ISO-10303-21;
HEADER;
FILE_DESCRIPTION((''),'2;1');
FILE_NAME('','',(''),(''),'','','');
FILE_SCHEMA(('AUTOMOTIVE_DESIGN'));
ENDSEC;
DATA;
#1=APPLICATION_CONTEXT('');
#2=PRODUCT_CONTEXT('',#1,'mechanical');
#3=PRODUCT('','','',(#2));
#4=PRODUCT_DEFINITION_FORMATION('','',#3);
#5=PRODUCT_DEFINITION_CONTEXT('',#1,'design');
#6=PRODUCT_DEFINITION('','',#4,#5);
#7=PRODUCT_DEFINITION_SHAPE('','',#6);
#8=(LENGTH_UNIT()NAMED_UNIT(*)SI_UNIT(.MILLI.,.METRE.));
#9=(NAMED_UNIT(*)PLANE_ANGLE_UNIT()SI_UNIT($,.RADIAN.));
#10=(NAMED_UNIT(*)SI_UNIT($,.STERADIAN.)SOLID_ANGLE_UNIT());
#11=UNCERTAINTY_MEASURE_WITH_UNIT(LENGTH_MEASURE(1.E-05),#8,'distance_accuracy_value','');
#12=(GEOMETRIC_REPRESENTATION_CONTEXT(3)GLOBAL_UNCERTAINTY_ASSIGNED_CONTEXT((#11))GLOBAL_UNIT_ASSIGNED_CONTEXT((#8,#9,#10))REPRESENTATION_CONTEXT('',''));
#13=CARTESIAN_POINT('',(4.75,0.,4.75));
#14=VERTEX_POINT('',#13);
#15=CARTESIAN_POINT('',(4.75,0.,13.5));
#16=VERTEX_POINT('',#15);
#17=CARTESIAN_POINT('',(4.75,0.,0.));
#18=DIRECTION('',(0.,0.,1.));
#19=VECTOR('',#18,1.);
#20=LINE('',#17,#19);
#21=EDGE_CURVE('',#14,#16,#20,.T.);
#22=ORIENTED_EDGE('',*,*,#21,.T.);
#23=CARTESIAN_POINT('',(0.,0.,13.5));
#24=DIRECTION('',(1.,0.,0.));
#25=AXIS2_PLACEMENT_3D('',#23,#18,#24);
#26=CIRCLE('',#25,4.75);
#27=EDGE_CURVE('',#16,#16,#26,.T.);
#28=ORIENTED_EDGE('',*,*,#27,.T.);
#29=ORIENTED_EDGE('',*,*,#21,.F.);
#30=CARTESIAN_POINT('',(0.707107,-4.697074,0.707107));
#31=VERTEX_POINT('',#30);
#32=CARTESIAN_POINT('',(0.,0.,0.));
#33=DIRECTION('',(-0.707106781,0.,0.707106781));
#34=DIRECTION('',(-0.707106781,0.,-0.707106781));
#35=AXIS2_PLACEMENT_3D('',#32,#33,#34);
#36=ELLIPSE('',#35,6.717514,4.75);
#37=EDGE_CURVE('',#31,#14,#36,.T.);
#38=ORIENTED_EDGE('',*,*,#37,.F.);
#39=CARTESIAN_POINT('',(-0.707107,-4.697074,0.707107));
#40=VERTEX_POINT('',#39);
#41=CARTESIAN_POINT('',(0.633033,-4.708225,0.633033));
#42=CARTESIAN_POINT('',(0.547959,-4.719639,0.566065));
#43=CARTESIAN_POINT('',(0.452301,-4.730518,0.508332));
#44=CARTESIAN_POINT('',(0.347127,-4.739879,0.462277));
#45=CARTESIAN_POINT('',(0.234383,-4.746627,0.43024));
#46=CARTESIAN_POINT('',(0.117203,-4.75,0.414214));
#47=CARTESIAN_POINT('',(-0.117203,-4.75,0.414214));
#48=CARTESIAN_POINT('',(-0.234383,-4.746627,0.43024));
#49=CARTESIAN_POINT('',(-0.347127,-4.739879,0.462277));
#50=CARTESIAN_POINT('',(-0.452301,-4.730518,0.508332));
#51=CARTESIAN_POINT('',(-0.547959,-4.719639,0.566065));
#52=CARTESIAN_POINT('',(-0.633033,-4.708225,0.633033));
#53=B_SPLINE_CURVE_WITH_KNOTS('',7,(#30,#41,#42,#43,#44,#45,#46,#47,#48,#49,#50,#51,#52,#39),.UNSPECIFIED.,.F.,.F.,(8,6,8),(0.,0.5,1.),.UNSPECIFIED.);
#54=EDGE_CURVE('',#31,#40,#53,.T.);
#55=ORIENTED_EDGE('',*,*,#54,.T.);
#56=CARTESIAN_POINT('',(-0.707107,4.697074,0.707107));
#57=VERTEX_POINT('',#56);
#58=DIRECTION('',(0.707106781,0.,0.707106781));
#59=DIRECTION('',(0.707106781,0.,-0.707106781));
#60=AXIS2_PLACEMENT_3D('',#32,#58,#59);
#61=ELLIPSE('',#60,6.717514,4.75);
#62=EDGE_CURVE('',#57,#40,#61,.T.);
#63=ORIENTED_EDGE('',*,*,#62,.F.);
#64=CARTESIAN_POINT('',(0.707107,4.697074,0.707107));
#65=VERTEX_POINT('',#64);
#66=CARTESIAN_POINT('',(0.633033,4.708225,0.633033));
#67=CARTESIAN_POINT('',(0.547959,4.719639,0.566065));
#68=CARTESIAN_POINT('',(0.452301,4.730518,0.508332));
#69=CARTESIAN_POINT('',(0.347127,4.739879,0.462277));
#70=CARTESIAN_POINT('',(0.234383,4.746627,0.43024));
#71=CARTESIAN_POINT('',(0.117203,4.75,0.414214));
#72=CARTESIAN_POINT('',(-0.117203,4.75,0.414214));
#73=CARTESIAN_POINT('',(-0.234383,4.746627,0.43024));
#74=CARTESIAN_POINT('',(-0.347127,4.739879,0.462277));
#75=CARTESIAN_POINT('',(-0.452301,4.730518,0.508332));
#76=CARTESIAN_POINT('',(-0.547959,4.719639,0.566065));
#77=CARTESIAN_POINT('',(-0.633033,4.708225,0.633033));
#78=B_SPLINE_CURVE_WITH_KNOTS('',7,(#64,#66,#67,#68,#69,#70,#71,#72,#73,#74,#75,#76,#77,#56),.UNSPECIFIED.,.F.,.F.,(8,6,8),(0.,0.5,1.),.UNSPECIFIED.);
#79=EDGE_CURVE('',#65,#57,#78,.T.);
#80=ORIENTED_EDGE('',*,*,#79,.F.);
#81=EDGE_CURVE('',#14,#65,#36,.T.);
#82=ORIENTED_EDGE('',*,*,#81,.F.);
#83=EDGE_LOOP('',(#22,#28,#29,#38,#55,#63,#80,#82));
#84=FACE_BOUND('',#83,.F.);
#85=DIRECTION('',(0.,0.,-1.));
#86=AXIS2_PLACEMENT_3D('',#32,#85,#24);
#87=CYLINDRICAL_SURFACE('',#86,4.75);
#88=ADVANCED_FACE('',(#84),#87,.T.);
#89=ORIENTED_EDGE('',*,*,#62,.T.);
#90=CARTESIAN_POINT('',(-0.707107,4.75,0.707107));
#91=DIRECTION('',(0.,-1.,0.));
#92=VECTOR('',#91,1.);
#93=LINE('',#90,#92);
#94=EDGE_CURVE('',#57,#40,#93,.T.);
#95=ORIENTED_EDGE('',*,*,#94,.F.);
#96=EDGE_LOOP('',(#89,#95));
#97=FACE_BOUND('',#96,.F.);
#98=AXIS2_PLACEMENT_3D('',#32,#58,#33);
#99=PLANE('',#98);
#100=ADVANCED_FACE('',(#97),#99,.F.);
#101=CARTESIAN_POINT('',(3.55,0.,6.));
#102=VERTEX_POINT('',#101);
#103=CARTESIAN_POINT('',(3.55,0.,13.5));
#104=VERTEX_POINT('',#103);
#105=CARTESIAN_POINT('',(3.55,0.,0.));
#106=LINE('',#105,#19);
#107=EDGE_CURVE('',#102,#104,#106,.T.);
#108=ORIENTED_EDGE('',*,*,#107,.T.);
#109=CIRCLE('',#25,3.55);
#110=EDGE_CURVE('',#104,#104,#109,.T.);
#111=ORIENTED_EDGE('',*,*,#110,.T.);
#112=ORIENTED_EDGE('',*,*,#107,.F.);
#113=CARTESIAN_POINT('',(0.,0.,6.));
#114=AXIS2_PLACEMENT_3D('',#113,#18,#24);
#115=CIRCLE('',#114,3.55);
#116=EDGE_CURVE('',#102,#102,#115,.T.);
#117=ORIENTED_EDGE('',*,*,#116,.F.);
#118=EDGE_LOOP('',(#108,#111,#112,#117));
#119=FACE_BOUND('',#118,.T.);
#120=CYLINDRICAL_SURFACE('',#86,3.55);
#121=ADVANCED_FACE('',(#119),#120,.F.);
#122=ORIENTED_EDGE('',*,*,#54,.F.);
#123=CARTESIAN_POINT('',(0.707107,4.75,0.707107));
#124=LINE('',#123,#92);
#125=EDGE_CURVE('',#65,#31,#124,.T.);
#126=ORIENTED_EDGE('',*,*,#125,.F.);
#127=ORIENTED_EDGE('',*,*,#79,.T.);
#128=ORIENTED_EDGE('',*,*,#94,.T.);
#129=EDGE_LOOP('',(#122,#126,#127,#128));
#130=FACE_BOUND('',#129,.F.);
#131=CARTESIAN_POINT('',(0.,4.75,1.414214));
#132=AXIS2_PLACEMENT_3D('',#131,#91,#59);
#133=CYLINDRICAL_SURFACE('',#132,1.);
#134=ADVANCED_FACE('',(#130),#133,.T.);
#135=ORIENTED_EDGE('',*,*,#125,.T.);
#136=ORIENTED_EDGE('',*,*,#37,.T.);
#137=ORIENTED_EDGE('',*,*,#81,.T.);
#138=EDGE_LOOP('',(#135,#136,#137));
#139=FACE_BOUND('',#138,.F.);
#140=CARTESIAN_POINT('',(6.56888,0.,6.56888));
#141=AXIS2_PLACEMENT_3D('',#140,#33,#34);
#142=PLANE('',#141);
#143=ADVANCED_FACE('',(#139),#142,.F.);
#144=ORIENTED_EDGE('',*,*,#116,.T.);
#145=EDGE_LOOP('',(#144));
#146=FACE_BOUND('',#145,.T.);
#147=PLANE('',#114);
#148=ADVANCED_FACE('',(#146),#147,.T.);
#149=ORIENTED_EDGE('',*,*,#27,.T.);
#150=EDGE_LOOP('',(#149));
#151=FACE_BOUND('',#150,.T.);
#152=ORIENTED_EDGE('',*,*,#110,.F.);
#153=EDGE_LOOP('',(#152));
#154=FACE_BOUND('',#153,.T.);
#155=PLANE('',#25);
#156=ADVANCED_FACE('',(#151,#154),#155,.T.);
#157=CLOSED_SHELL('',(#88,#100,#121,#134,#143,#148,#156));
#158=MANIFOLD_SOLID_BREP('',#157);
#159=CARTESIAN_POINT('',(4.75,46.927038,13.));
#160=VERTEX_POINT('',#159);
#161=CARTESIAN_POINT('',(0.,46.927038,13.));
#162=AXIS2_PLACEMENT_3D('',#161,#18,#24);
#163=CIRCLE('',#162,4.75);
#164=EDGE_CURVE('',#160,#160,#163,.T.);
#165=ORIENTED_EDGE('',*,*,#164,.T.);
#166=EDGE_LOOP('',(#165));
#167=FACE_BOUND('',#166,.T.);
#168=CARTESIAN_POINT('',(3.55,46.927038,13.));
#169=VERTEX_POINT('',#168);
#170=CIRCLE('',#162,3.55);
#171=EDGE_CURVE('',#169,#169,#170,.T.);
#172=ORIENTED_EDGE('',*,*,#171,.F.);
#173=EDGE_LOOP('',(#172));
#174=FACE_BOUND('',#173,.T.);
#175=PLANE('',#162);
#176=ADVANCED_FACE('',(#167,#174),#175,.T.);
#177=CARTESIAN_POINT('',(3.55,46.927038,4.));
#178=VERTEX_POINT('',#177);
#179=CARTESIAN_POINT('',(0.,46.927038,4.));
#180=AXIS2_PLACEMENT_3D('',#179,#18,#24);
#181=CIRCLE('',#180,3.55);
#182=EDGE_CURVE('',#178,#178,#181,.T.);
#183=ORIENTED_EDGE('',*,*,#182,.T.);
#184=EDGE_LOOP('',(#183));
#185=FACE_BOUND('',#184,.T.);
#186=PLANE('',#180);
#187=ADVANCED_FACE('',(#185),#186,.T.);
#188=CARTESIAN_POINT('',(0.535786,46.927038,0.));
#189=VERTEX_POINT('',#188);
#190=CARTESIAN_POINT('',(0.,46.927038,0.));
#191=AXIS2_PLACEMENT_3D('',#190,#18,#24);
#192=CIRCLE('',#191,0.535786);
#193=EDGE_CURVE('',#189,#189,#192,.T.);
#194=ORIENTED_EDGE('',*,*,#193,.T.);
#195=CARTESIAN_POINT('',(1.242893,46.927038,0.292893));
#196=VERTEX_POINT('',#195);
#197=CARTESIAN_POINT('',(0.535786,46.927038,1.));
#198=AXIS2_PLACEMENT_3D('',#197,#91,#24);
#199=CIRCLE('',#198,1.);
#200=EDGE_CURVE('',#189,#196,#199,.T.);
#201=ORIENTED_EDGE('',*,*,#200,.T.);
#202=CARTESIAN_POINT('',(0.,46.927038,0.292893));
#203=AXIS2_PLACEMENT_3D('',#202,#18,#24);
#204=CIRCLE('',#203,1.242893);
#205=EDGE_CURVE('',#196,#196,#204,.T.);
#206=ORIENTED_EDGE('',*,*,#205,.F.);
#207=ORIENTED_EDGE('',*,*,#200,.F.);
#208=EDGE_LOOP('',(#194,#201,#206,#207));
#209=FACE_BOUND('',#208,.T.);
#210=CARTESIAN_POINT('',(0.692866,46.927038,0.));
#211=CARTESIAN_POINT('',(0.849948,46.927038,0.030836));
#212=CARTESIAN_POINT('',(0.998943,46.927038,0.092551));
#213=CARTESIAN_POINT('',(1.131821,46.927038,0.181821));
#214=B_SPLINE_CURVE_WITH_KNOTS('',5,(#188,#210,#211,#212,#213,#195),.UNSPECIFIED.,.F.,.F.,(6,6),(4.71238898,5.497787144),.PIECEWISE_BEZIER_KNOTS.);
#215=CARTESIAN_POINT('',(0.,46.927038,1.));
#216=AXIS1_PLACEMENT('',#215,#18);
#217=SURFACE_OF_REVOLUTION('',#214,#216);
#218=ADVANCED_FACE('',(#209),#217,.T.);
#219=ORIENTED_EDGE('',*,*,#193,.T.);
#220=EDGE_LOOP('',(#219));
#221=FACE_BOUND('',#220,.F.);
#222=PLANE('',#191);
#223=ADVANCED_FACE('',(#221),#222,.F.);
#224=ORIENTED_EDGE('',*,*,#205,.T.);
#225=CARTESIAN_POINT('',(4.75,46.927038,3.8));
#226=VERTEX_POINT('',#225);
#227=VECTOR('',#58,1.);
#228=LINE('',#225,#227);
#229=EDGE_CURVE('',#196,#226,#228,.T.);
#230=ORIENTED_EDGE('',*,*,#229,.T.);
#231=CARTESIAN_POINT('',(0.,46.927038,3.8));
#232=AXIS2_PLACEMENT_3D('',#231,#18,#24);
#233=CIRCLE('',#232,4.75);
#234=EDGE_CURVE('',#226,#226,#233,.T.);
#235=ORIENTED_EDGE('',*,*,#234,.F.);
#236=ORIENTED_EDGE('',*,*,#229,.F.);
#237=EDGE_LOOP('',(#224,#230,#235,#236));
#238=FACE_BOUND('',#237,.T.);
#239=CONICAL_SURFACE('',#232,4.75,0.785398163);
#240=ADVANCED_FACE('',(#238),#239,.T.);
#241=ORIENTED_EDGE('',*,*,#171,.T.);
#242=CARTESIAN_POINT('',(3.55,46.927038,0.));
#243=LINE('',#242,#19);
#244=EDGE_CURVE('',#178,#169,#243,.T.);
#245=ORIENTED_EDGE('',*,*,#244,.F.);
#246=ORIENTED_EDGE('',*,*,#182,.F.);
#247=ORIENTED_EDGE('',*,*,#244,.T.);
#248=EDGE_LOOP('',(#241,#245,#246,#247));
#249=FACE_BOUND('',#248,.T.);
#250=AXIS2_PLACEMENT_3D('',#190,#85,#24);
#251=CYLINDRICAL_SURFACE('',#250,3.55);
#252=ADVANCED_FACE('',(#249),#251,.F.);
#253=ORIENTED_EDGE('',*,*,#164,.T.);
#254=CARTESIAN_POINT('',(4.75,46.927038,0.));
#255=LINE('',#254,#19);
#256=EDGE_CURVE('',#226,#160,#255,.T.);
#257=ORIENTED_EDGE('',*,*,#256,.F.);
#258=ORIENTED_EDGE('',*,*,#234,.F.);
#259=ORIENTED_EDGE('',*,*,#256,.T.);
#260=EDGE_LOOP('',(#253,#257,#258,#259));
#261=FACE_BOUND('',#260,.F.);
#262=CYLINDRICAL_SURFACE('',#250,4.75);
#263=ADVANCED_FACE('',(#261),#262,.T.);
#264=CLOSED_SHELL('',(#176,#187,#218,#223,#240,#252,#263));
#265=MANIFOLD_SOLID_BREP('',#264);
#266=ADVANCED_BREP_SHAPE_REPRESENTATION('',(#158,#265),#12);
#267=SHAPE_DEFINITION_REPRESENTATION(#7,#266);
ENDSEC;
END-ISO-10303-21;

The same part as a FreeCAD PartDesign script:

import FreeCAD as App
import Part
import Sketcher

V = App.Vector
Q = App.Units.Quantity


def edges_at(feature, points):
    """Names of the edges that pass closest to the given points."""
    edges = feature.Shape.Edges
    near = lambda p: min(range(len(edges)), key=lambda i: edges[i].distToShape(Part.Vertex(*p))[0])
    return sorted({f"Edge{near(p) + 1}" for p in points})

doc = App.newDocument("Part")
params = doc.addObject("Spreadsheet::Sheet", "Params")
for row, (alias, value) in enumerate([
    ("sketch1_diameter", "9.5 mm"),
    ("sketch1_diameter2", "7.1 mm"),
    ("pad1_length", "13.5 mm"),
    ("sketch2_diameter", "7.1 mm"),
    ("pad2_length", "6 mm"),
    ("pocket1_length", "25 mm"),
    ("fillet_radius", "1 mm"),
    ("sketch4_diameter", "9.5 mm"),
    ("sketch4_diameter2", "7.1 mm"),
    ("pad3_length", "13 mm"),
    ("sketch5_diameter", "7.1 mm"),
    ("pad4_length", "4 mm"),
    ("chamfer_size", "3.8 mm"),
    ("fillet2_radius", "1 mm"),
], start=1):
    params.set(f"A{row}", alias)
    params.set(f"B{row}", "=" + value)
    params.setAlias(f"B{row}", alias)

body = doc.addObject("PartDesign::Body", "Body")

sketch1 = body.newObject("Sketcher::SketchObject", "Sketch")
sketch1.AttachmentSupport = (doc.getObject("XY_Plane"), [""])
sketch1.MapMode = "FlatFace"
sketch1.addGeometry(Part.Circle(V(0, 0, 0), V(0, 0, 1), 4.8), False)
sketch1.addGeometry(Part.Circle(V(0, 0, 0), V(0, 0, 1), 3.5), False)
sketch1.addConstraint(Sketcher.Constraint("Coincident", 0, 3, -1, 1))
sketch1.addConstraint(Sketcher.Constraint("Coincident", 1, 3, -1, 1))
sketch1.addConstraint(Sketcher.Constraint("Diameter", 0, Q("9.5 mm")))
sketch1.addConstraint(Sketcher.Constraint("Diameter", 1, Q("7.1 mm")))
sketch1.setExpression("Constraints[2]", "Params.sketch1_diameter")
sketch1.setExpression("Constraints[3]", "Params.sketch1_diameter2")
pad1 = body.newObject("PartDesign::Pad", "Pad")
pad1.Profile = sketch1
pad1.setExpression("Length", "Params.pad1_length")

sketch2 = body.newObject("Sketcher::SketchObject", "Sketch001")
sketch2.AttachmentSupport = (doc.getObject("XY_Plane"), [""])
sketch2.MapMode = "FlatFace"
sketch2.addGeometry(Part.Circle(V(0, 0, 0), V(0, 0, 1), 3.5), False)
sketch2.addConstraint(Sketcher.Constraint("Coincident", 0, 3, -1, 1))
sketch2.addConstraint(Sketcher.Constraint("Diameter", 0, Q("7.1 mm")))
sketch2.setExpression("Constraints[1]", "Params.sketch2_diameter")
pad2 = body.newObject("PartDesign::Pad", "Pad001")
pad2.Profile = sketch2
pad2.setExpression("Length", "Params.pad2_length")

sketch3 = body.newObject("Sketcher::SketchObject", "Sketch002")
sketch3.AttachmentSupport = (doc.getObject("XZ_Plane"), [""])
sketch3.MapMode = "FlatFace"
sketch3.addGeometry(Part.LineSegment(V(7, 7, 0), V(0, 0, 0)), False)
sketch3.addGeometry(Part.LineSegment(V(0, 0, 0), V(-6, 6, 0)), False)
sketch3.addGeometry(Part.LineSegment(V(-6, 6, 0), V(-6, -5, 0)), False)
sketch3.addGeometry(Part.LineSegment(V(-6, -5, 0), V(7, -5, 0)), False)
sketch3.addGeometry(Part.LineSegment(V(7, -5, 0), V(7, 7, 0)), False)
sketch3.addConstraint(Sketcher.Constraint("Coincident", 0, 2, 1, 1))
sketch3.addConstraint(Sketcher.Constraint("Coincident", 1, 2, 2, 1))
sketch3.addConstraint(Sketcher.Constraint("Coincident", 2, 2, 3, 1))
sketch3.addConstraint(Sketcher.Constraint("Coincident", 3, 2, 4, 1))
sketch3.addConstraint(Sketcher.Constraint("Coincident", 4, 2, 0, 1))
sketch3.addConstraint(Sketcher.Constraint("Vertical", 2))
sketch3.addConstraint(Sketcher.Constraint("Horizontal", 3))
sketch3.addConstraint(Sketcher.Constraint("Vertical", 4))
sketch3.addConstraint(Sketcher.Constraint("Coincident", 0, 2, -1, 1))
sketch3.addConstraint(Sketcher.Constraint("Perpendicular", 0, 1))
sketch3.addConstraint(Sketcher.Constraint("Angle", 0, Q("-135 deg")))
sketch3.addConstraint(Sketcher.Constraint("Distance", 0, Q("9.289799 mm")))
sketch3.addConstraint(Sketcher.Constraint("DistanceX", 3, 1, 3, 2, Q("12.384853 mm")))
sketch3.addConstraint(Sketcher.Constraint("DistanceY", 2, 2, 2, 1, Q("10.614696 mm")))
pocket1 = body.newObject("PartDesign::Pocket", "Pocket")
pocket1.Profile = sketch3
pocket1.setExpression("Length", "Params.pocket1_length")
pocket1.Midplane = True
doc.recompute()

fillet = body.newObject("PartDesign::Fillet", "Fillet")
fillet.Base = (pocket1, edges_at(pocket1, [(0, 0, 0)]))
fillet.setExpression("Radius", "Params.fillet_radius")
body2 = doc.addObject("PartDesign::Body", "Body001")

sketch4 = body2.newObject("Sketcher::SketchObject", "Sketch003")
sketch4.AttachmentSupport = (doc.getObject("XY_Plane001"), [""])
sketch4.MapMode = "FlatFace"
sketch4.addGeometry(Part.Circle(V(0, 46.9, 0), V(0, 0, 1), 4.8), False)
sketch4.addGeometry(Part.Circle(V(0, 46.9, 0), V(0, 0, 1), 3.5), False)
sketch4.addConstraint(Sketcher.Constraint("Coincident", 1, 3, 0, 3))
sketch4.addConstraint(Sketcher.Constraint("PointOnObject", 0, 3, -2))
sketch4.addConstraint(Sketcher.Constraint("Diameter", 0, Q("9.5 mm")))
sketch4.addConstraint(Sketcher.Constraint("Diameter", 1, Q("7.1 mm")))
sketch4.addConstraint(Sketcher.Constraint("DistanceY", -1, 1, 0, 3, Q("46.927038 mm")))
sketch4.setExpression("Constraints[2]", "Params.sketch4_diameter")
sketch4.setExpression("Constraints[3]", "Params.sketch4_diameter2")
pad3 = body2.newObject("PartDesign::Pad", "Pad002")
pad3.Profile = sketch4
pad3.setExpression("Length", "Params.pad3_length")

sketch5 = body2.newObject("Sketcher::SketchObject", "Sketch004")
sketch5.AttachmentSupport = (doc.getObject("XY_Plane001"), [""])
sketch5.MapMode = "FlatFace"
sketch5.addGeometry(Part.Circle(V(0, 46.9, 0), V(0, 0, 1), 3.5), False)
sketch5.addConstraint(Sketcher.Constraint("PointOnObject", 0, 3, -2))
sketch5.addConstraint(Sketcher.Constraint("Diameter", 0, Q("7.1 mm")))
sketch5.addConstraint(Sketcher.Constraint("DistanceY", -1, 1, 0, 3, Q("46.927038 mm")))
sketch5.setExpression("Constraints[1]", "Params.sketch5_diameter")
pad4 = body2.newObject("PartDesign::Pad", "Pad003")
pad4.Profile = sketch5
pad4.setExpression("Length", "Params.pad4_length")
doc.recompute()

chamfer = body2.newObject("PartDesign::Chamfer", "Chamfer")
chamfer.Base = (pad4, edges_at(pad4, [(-4.75, 46.927, 0)]))
chamfer.setExpression("Size", "Params.chamfer_size")
doc.recompute()

fillet2 = body2.newObject("PartDesign::Fillet", "Fillet001")
fillet2.Base = (chamfer, edges_at(chamfer, [(-0.95, 46.927, 0)]))
fillet2.setExpression("Radius", "Params.fillet2_radius")

doc.recompute()
